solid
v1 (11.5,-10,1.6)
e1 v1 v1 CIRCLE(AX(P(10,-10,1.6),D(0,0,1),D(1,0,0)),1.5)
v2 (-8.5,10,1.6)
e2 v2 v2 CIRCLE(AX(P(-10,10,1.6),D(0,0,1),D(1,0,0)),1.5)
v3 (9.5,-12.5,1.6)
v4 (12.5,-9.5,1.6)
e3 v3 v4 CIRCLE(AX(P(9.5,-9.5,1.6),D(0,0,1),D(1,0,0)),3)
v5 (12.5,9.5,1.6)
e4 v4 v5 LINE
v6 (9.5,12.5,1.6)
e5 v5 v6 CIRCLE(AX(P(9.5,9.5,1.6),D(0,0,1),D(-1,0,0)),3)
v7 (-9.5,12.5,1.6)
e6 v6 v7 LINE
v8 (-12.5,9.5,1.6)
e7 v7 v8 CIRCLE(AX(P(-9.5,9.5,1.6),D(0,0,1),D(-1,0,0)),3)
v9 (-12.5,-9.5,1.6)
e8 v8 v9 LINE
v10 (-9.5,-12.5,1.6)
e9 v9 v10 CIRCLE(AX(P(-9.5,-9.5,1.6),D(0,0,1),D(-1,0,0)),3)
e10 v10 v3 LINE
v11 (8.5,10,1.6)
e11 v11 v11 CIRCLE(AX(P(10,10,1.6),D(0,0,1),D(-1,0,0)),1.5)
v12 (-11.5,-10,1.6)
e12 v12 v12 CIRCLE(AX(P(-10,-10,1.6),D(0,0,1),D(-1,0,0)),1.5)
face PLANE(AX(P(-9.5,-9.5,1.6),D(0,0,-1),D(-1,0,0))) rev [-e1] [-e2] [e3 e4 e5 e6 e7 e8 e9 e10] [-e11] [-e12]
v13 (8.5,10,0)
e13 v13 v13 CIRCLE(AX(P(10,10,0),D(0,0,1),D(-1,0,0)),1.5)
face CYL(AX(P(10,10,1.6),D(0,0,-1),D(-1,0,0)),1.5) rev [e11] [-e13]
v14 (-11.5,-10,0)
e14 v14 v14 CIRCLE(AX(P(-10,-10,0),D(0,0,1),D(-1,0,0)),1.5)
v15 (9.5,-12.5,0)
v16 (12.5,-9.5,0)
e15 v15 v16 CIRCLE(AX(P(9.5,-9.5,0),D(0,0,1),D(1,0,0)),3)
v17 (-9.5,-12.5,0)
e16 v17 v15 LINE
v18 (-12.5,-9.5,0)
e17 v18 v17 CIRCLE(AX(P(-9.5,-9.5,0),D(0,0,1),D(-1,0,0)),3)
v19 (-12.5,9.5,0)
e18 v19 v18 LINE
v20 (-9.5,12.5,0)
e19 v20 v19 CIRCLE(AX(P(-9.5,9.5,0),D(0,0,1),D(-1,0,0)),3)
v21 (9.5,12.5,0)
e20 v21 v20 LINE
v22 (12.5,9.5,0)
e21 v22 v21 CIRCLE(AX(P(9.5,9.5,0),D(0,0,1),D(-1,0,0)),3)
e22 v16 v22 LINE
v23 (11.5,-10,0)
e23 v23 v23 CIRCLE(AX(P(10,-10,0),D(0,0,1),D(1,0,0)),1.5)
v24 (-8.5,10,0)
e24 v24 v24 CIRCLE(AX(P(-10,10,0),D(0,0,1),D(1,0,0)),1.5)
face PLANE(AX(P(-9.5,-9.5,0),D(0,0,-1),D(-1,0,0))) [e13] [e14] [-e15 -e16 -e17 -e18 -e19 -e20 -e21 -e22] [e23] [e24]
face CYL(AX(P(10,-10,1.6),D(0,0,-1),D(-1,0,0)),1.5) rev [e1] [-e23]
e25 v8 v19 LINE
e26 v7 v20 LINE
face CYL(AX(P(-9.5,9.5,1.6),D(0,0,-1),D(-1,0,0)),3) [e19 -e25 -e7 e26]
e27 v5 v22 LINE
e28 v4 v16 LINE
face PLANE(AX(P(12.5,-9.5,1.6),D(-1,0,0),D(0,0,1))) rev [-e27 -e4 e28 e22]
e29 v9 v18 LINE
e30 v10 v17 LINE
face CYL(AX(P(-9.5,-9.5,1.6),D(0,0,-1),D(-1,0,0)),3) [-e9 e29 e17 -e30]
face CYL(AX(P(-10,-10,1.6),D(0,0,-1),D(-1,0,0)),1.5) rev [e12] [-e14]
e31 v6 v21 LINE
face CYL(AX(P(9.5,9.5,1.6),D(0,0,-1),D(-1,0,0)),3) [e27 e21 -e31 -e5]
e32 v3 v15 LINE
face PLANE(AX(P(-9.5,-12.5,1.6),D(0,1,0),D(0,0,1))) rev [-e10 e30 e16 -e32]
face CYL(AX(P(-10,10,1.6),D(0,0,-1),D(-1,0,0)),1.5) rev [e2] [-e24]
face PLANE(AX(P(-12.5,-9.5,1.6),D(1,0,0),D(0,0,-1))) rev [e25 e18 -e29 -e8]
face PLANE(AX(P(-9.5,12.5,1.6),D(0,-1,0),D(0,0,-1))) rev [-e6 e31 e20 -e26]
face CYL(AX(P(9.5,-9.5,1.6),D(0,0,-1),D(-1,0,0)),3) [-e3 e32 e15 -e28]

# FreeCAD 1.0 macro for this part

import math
import FreeCAD as App
import Part
import Sketcher

V = App.Vector
Q = App.Units.Quantity

doc = App.newDocument("Part")
body = doc.addObject("PartDesign::Body", "Body")

sketch1 = body.newObject("Sketcher::SketchObject", "Sketch")
sketch1.AttachmentSupport = (doc.getObject("XY_Plane"), [""])
sketch1.MapMode = "FlatFace"
sketch1.addGeometry([
    Part.LineSegment(V(-9.5, -12.5, 0), V(9.5, -12.5, 0)),
    Part.ArcOfCircle(Part.Circle(V(9.5, -9.5, 0), V(0, 0, 1), 3), math.radians(-90), math.radians(0)),
    Part.LineSegment(V(12.5, -9.5, 0), V(12.5, 9.5, 0)),
    Part.ArcOfCircle(Part.Circle(V(9.5, 9.5, 0), V(0, 0, 1), 3), math.radians(0), math.radians(90)),
    Part.LineSegment(V(9.5, 12.5, 0), V(-9.5, 12.5, 0)),
    Part.ArcOfCircle(Part.Circle(V(-9.5, 9.5, 0), V(0, 0, 1), 3), math.radians(90), math.radians(180)),
    Part.LineSegment(V(-12.5, 9.5, 0), V(-12.5, -9.5, 0)),
    Part.ArcOfCircle(Part.Circle(V(-9.5, -9.5, 0), V(0, 0, 1), 3), math.radians(180), math.radians(270)),
    Part.Circle(V(-10, -10, 0), V(0, 0, 1), 1.5),
    Part.Circle(V(10, -10, 0), V(0, 0, 1), 1.5),
    Part.Circle(V(-10, 10, 0), V(0, 0, 1), 1.5),
    Part.Circle(V(10, 10, 0), V(0, 0, 1), 1.5),
], False)
sketch1.addConstraint([
    Sketcher.Constraint("Tangent", 0, 2, 1, 1),
    Sketcher.Constraint("Tangent", 1, 2, 2, 1),
    Sketcher.Constraint("Tangent", 2, 2, 3, 1),
    Sketcher.Constraint("Tangent", 3, 2, 4, 1),
    Sketcher.Constraint("Tangent", 4, 2, 5, 1),
    Sketcher.Constraint("Tangent", 5, 2, 6, 1),
    Sketcher.Constraint("Tangent", 6, 2, 7, 1),
    Sketcher.Constraint("Tangent", 7, 2, 0, 1),
    Sketcher.Constraint("Horizontal", 0),
    Sketcher.Constraint("Vertical", 2),
    Sketcher.Constraint("Horizontal", 4),
    Sketcher.Constraint("Vertical", 6),
    Sketcher.Constraint("Equal", 1, 3),
    Sketcher.Constraint("Equal", 3, 5),
    Sketcher.Constraint("Equal", 5, 7),
    Sketcher.Constraint("Equal", 8, 9),
    Sketcher.Constraint("Equal", 9, 10),
    Sketcher.Constraint("Equal", 10, 11),
    Sketcher.Constraint("Symmetric", 1, 3, 5, 3, -1, 1),
    Sketcher.Constraint("Symmetric", 9, 3, 10, 3, -1, 1),
    Sketcher.Constraint("Symmetric", 8, 3, 11, 3, -1, 1),
    Sketcher.Constraint("Symmetric", 8, 3, 9, 3, -2),
    Sketcher.Constraint("Equal", 4, 2),
    Sketcher.Constraint("Diameter", 8, Q("3 mm")),
    Sketcher.Constraint("Radius", 1, Q("3 mm")),
    Sketcher.Constraint("DistanceX", 0, 1, 0, 2, Q("19 mm")),
    Sketcher.Constraint("DistanceX", 8, 3, -1, 1, Q("10 mm")),
    Sketcher.Constraint("DistanceY", 8, 3, -1, 1, Q("10 mm")),
])
pad1 = body.newObject("PartDesign::Pad", "Pad")
pad1.Profile = sketch1
pad1.Length = 1.6

doc.recompute()
